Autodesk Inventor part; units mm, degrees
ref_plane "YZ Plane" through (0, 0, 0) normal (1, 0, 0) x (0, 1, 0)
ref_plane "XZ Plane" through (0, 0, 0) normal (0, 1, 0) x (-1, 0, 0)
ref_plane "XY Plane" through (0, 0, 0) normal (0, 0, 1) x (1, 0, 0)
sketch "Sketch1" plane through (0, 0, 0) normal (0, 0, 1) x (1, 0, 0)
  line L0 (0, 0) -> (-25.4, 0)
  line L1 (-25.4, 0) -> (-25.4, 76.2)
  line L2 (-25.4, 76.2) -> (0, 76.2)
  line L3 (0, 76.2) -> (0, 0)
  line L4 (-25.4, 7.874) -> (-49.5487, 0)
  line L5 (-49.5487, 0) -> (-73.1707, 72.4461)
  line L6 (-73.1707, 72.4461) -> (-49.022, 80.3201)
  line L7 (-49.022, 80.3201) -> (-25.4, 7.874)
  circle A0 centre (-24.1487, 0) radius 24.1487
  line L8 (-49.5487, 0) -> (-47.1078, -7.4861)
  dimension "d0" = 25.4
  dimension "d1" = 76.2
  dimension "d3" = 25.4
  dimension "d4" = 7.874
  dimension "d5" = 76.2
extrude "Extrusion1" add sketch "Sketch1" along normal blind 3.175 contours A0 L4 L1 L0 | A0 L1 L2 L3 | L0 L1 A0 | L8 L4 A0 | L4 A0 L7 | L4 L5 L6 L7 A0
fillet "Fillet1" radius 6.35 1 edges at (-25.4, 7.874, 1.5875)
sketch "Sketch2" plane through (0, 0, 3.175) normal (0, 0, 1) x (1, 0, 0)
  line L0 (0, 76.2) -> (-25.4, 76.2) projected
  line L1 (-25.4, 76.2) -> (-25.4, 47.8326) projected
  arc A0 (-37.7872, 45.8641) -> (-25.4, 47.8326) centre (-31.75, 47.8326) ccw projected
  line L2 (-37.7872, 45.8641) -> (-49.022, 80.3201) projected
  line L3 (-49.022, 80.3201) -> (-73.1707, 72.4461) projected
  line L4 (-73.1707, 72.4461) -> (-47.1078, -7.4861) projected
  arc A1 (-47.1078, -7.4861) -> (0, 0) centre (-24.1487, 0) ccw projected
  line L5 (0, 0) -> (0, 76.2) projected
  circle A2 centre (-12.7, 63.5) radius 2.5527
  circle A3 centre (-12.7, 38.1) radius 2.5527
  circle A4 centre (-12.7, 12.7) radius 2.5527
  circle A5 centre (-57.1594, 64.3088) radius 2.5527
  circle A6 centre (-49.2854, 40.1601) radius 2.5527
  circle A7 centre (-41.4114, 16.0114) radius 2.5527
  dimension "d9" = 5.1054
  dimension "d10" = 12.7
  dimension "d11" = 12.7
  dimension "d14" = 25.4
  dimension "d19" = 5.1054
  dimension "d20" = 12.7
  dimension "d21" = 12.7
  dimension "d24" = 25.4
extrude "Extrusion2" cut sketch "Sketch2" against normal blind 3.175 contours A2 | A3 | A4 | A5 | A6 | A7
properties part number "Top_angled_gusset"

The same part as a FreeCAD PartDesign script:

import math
import FreeCAD as App
import Part
import Sketcher

V = App.Vector
Q = App.Units.Quantity


def edges_at(feature, points):
    """Names of the edges that pass closest to the given points."""
    edges = feature.Shape.Edges
    near = lambda p: min(range(len(edges)), key=lambda i: edges[i].distToShape(Part.Vertex(*p))[0])
    return sorted({f"Edge{near(p) + 1}" for p in points})

doc = App.newDocument("Part")
body = doc.addObject("PartDesign::Body", "Body")

# Sketch on XY plane
sketch1 = body.newObject("Sketcher::SketchObject", "Sketch")
sketch1.AttachmentSupport = (doc.getObject("XY_Plane"), [""])
sketch1.MapMode = "FlatFace"
sketch1.addGeometry([
    Part.ArcOfCircle(Part.Circle(V(-24, 0, 0), V(0, 0, 1), 24), math.radians(-162), math.radians(0)),  # 0
    Part.LineSegment(V(0, 0, 0), V(0, 76, 0)),  # 1
    Part.LineSegment(V(0, 76, 0), V(-25, 76, 0)),  # 2
    Part.LineSegment(V(-25, 76, 0), V(-25, 8, 0)),  # 3
    Part.LineSegment(V(-25, 8, 0), V(-49, 80, 0)),  # 4
    Part.LineSegment(V(-49, 80, 0), V(-73, 72, 0)),  # 5
    Part.LineSegment(V(-73, 72, 0), V(-50, 0, 0)),  # 6
    Part.LineSegment(V(-50, 0, 0), V(-47, -7, 0)),  # 7
], False)
sketch1.addConstraint([
    Sketcher.Constraint("Tangent", 0, 2, 1, 1),
    Sketcher.Constraint("Coincident", 1, 2, 2, 1),
    Sketcher.Constraint("Coincident", 2, 2, 3, 1),
    Sketcher.Constraint("Coincident", 3, 2, 4, 1),
    Sketcher.Constraint("Coincident", 4, 2, 5, 1),
    Sketcher.Constraint("Coincident", 5, 2, 6, 1),
    Sketcher.Constraint("Coincident", 6, 2, 7, 1),
    Sketcher.Constraint("Tangent", 7, 2, 0, 1),
    Sketcher.Constraint("Vertical", 1),
    Sketcher.Constraint("Horizontal", 2),
    Sketcher.Constraint("Vertical", 3),
    Sketcher.Constraint("Coincident", 0, 2, -1, 1),
    Sketcher.Constraint("PointOnObject", 6, 2, -1),
    Sketcher.Constraint("Perpendicular", 4, 5),
    Sketcher.Constraint("Perpendicular", 5, 6),
    Sketcher.Constraint("Parallel", 6, 7),
    Sketcher.Constraint("Equal", 4, 6),
    Sketcher.Constraint("DistanceX", 2, 2, 2, 1, Q("1 in")),
    Sketcher.Constraint("DistanceY", 1, 1, 1, 2, Q("3 in")),
    Sketcher.Constraint("Distance", 4, Q("3 in")),
    Sketcher.Constraint("Distance", 5, Q("1 in")),
    Sketcher.Constraint("Distance", 7, Q("0.31 in")),
])
pad1 = body.newObject("PartDesign::Pad", "Pad")
pad1.Profile = sketch1
pad1.Length = Q("0.125 in")
doc.recompute()

fillet = body.newObject("PartDesign::Fillet", "Fillet")
fillet.Base = (pad1, edges_at(pad1, [(-25.4, 7.874, 1.587)]))
fillet.Radius = Q("0.25 in")

# Sketch on XY plane
sketch2 = body.newObject("Sketcher::SketchObject", "Sketch001")
sketch2.AttachmentSupport = (doc.getObject("XY_Plane"), [""])
sketch2.MapMode = "FlatFace"
sketch2.AttachmentOffset = App.Placement(V(0, 0, 0.125 * 25.4), App.Rotation())
sketch2.addGeometry([
    Part.Circle(V(-12.7, 63.5, 0), V(0, 0, 1), 2.6),  # 0
    Part.Circle(V(-12.7, 38.1, 0), V(0, 0, 1), 2.6),  # 1
    Part.Circle(V(-12.7, 12.7, 0), V(0, 0, 1), 2.6),  # 2
    Part.Circle(V(-57.2, 64.3, 0), V(0, 0, 1), 2.6),  # 3
    Part.Circle(V(-49.3, 40.2, 0), V(0, 0, 1), 2.6),  # 4
    Part.Circle(V(-41.4, 16, 0), V(0, 0, 1), 2.6),  # 5
], False)
sketch2.addConstraint([
    Sketcher.Constraint("Equal", 0, 1),
    Sketcher.Constraint("Equal", 1, 2),
    Sketcher.Constraint("Equal", 2, 3),
    Sketcher.Constraint("Equal", 3, 4),
    Sketcher.Constraint("Equal", 4, 5),
    Sketcher.Constraint("Vertical", 0, 3, 1, 3),
    Sketcher.Constraint("Vertical", 1, 3, 2, 3),
    Sketcher.Constraint("Diameter", 0, Q("0.201 in")),
    Sketcher.Constraint("DistanceY", 1, 3, 0, 3, Q("1 in")),
    Sketcher.Constraint("DistanceY", 2, 3, 1, 3, Q("1 in")),
    Sketcher.Constraint("DistanceX", 0, 3, -1, 1, Q("0.5 in")),
    Sketcher.Constraint("DistanceY", -1, 1, 2, 3, Q("0.5 in")),
    Sketcher.Constraint("DistanceX", 3, 3, 4, 3, Q("0.31 in")),
    Sketcher.Constraint("DistanceX", 4, 3, 5, 3, Q("0.31 in")),
    Sketcher.Constraint("DistanceY", -1, 1, 4, 3, Q("1.5811 in")),
    Sketcher.Constraint("DistanceX", 3, 3, -1, 1, Q("57.1594 mm")),
    Sketcher.Constraint("DistanceY", -1, 1, 3, 3, Q("64.3088 mm")),
    Sketcher.Constraint("DistanceY", -1, 1, 5, 3, Q("16.0114 mm")),
])
pocket1 = body.newObject("PartDesign::Pocket", "Pocket")
pocket1.Profile = sketch2
pocket1.Length = Q("0.125 in")

doc.recompute()
